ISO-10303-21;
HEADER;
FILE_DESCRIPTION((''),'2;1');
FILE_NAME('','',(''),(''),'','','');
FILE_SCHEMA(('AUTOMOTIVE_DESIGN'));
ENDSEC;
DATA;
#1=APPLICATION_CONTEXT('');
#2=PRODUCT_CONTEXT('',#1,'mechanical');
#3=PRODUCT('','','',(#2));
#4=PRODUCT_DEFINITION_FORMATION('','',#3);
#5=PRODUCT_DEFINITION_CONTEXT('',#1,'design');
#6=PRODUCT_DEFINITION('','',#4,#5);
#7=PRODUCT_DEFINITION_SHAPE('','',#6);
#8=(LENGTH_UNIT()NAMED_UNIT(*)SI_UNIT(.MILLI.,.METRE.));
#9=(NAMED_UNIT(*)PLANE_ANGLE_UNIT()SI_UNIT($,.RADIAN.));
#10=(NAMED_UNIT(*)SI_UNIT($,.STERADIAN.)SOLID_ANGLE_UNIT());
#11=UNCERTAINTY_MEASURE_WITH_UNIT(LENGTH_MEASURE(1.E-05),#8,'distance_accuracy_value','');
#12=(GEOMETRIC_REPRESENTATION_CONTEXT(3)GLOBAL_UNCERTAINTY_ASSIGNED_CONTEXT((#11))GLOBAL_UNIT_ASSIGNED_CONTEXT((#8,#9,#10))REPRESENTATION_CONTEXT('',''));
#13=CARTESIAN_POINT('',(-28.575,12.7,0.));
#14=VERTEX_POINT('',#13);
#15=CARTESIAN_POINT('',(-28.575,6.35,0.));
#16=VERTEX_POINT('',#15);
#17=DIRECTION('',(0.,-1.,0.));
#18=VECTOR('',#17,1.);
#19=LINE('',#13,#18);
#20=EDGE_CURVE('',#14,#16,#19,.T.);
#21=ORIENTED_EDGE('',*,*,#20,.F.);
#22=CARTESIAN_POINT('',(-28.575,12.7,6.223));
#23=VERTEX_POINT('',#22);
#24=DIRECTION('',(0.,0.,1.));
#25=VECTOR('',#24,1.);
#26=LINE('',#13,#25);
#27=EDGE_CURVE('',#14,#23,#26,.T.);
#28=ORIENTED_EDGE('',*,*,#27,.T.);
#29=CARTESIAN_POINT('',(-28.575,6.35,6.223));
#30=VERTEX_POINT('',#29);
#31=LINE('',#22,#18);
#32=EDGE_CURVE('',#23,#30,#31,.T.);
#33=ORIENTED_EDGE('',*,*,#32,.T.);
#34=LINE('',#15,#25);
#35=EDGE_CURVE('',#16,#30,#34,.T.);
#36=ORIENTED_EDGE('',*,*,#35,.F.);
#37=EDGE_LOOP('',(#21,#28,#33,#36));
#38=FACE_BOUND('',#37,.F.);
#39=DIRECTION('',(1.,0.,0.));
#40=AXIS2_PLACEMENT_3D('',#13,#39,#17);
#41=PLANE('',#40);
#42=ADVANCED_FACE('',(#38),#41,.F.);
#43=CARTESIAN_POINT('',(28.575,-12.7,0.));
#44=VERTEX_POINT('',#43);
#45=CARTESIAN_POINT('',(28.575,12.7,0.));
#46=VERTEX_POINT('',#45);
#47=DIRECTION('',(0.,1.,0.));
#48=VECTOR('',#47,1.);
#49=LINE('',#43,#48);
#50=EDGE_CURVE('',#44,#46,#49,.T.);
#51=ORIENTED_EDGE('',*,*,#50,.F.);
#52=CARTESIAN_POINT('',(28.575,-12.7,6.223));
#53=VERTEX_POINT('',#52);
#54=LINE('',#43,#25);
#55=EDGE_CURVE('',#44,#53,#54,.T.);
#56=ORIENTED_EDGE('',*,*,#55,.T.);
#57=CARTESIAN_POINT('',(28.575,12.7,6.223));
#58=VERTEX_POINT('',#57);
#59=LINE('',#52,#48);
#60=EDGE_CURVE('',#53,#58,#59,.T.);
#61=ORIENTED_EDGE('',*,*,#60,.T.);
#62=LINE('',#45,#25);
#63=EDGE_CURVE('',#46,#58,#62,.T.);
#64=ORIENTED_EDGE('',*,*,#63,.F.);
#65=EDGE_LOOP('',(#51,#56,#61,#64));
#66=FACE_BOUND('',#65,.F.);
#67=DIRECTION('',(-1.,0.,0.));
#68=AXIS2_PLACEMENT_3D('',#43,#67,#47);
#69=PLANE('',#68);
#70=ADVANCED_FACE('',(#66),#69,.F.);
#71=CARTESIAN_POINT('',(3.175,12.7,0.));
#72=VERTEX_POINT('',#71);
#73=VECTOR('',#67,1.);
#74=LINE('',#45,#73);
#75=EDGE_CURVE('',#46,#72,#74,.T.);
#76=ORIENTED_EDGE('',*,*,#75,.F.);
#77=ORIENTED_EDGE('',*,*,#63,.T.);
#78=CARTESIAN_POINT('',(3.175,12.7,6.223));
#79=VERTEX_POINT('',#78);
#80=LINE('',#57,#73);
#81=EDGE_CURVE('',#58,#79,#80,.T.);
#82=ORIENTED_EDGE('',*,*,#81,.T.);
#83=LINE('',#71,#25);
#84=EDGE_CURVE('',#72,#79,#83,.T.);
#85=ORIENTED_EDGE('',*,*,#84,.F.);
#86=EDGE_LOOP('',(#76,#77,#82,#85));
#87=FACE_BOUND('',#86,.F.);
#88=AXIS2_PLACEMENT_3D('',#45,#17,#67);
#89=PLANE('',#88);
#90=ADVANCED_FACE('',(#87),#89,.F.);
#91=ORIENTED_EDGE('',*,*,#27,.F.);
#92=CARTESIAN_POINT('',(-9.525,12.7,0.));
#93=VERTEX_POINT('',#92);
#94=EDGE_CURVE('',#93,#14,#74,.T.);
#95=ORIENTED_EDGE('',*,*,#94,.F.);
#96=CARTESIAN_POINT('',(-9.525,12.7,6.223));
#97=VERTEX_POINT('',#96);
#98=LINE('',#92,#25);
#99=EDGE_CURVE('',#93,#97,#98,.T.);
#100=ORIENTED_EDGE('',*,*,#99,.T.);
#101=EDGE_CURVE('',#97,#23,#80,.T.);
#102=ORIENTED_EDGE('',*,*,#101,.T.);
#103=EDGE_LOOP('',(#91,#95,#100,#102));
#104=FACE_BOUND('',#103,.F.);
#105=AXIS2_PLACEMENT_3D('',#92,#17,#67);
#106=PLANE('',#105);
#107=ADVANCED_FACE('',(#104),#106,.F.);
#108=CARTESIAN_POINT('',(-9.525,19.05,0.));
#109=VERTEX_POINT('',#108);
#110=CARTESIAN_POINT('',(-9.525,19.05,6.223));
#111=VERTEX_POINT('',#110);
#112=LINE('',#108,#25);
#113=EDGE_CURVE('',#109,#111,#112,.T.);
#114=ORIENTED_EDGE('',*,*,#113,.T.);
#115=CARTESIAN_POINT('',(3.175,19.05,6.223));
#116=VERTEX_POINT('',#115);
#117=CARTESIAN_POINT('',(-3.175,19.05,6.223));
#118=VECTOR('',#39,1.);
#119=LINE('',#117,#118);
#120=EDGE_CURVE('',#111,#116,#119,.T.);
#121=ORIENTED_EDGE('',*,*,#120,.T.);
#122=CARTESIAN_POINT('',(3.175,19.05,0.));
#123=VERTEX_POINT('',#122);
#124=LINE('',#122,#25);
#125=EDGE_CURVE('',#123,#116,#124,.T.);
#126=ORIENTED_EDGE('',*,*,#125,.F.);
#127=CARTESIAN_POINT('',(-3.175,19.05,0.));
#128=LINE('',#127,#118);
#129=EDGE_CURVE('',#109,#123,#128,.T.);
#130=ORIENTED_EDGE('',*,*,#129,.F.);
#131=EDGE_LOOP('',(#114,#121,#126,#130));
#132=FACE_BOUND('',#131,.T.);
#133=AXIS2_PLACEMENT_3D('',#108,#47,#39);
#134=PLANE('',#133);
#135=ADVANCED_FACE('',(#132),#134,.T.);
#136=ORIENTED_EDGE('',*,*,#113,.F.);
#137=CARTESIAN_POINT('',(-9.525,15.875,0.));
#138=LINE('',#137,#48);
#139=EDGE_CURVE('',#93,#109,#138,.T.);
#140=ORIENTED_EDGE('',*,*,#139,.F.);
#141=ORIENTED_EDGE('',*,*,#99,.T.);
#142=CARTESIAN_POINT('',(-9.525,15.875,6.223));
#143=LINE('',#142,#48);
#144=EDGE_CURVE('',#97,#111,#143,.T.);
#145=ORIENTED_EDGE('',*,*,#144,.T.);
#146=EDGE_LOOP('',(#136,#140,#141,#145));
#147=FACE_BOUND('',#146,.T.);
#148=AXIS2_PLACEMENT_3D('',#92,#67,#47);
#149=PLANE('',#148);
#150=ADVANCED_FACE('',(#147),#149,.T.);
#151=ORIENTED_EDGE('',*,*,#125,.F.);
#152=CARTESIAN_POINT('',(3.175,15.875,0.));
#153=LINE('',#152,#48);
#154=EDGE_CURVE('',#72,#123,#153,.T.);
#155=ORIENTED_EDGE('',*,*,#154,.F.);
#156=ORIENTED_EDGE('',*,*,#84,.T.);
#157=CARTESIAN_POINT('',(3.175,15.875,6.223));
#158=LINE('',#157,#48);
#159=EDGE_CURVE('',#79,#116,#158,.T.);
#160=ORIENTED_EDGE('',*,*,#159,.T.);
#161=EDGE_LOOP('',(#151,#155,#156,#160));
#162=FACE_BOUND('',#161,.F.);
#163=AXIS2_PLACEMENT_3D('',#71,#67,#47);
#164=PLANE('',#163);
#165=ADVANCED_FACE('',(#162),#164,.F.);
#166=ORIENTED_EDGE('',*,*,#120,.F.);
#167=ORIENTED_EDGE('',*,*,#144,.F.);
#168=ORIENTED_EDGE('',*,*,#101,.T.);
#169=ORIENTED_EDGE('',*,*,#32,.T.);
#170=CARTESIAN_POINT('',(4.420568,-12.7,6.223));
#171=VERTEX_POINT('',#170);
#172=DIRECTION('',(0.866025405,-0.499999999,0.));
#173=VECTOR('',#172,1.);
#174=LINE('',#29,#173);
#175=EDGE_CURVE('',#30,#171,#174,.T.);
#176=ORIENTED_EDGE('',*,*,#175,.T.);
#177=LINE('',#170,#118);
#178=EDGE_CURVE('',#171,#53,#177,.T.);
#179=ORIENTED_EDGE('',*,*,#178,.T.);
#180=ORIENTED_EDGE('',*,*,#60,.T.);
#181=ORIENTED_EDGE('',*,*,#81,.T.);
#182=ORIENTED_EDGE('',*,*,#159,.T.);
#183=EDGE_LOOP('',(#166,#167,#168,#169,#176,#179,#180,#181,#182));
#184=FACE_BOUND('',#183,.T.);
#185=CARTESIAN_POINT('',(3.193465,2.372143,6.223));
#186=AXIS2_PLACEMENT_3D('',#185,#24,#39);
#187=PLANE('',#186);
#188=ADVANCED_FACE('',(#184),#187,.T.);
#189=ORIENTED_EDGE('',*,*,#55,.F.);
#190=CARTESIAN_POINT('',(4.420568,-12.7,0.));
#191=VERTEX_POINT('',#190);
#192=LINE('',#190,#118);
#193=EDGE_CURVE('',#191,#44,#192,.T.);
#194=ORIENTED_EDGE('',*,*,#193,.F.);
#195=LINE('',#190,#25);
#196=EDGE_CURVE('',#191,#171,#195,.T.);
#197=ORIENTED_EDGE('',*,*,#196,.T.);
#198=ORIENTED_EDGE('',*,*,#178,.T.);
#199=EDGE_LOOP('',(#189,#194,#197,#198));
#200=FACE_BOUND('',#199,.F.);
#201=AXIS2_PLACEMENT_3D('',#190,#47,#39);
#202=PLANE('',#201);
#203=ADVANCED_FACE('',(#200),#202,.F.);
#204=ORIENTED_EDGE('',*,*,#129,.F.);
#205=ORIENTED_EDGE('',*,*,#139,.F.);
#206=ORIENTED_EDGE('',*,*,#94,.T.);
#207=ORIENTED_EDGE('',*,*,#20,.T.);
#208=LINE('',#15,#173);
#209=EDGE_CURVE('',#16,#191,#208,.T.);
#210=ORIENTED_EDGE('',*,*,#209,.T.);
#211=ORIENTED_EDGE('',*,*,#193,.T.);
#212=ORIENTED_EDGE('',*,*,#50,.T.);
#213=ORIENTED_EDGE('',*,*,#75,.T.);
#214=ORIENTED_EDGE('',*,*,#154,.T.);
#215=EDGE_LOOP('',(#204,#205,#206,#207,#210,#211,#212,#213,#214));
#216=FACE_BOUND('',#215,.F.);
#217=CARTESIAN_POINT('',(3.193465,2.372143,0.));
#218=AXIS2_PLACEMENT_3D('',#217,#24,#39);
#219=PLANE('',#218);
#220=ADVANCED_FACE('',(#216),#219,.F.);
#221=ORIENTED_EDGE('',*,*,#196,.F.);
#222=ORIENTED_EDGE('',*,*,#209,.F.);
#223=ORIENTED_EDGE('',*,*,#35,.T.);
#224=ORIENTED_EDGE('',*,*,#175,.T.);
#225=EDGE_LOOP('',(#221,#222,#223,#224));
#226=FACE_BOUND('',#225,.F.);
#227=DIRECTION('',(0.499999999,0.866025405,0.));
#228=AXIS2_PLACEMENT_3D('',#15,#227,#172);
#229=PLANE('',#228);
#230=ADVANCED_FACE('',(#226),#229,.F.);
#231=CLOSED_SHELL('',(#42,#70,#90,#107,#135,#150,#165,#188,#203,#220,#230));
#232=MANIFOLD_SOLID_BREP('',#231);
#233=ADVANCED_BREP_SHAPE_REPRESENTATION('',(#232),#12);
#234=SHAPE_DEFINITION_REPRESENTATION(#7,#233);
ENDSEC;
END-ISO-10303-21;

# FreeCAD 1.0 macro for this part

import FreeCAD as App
import Part
import Sketcher

V = App.Vector
Q = App.Units.Quantity

doc = App.newDocument("Part")
body = doc.addObject("PartDesign::Body", "Body")

# Sketch on XY plane
sketch1 = body.newObject("Sketcher::SketchObject", "Sketch")
sketch1.AttachmentSupport = (doc.getObject("XY_Plane"), [""])
sketch1.MapMode = "FlatFace"
sketch1.addGeometry(Part.LineSegment(V(4.420568, -12.7, 0), V(28.575, -12.7, 0)), False)
sketch1.addGeometry(Part.LineSegment(V(28.575, -12.7, 0), V(28.575, 12.7, 0)), False)
sketch1.addGeometry(Part.LineSegment(V(28.575, 12.7, 0), V(3.175, 12.7, 0)), False)
sketch1.addGeometry(Part.LineSegment(V(3.175, 12.7, 0), V(3.175, 19.05, 0)), False)
sketch1.addGeometry(Part.LineSegment(V(3.175, 19.05, 0), V(-9.525, 19.05, 0)), False)
sketch1.addGeometry(Part.LineSegment(V(-9.525, 19.05, 0), V(-9.525, 12.7, 0)), False)
sketch1.addGeometry(Part.LineSegment(V(-9.525, 12.7, 0), V(-28.575, 12.7, 0)), False)
sketch1.addGeometry(Part.LineSegment(V(-28.575, 12.7, 0), V(-28.575, 6.35, 0)), False)
sketch1.addGeometry(Part.LineSegment(V(-28.575, 6.35, 0), V(4.420568, -12.7, 0)), False)
sketch1.addConstraint(Sketcher.Constraint("Coincident", 0, 2, 1, 1))
sketch1.addConstraint(Sketcher.Constraint("Coincident", 1, 2, 2, 1))
sketch1.addConstraint(Sketcher.Constraint("Coincident", 2, 2, 3, 1))
sketch1.addConstraint(Sketcher.Constraint("Coincident", 3, 2, 4, 1))
sketch1.addConstraint(Sketcher.Constraint("Coincident", 4, 2, 5, 1))
sketch1.addConstraint(Sketcher.Constraint("Coincident", 5, 2, 6, 1))
sketch1.addConstraint(Sketcher.Constraint("Coincident", 6, 2, 7, 1))
sketch1.addConstraint(Sketcher.Constraint("Coincident", 7, 2, 8, 1))
sketch1.addConstraint(Sketcher.Constraint("Coincident", 8, 2, 0, 1))
sketch1.addConstraint(Sketcher.Constraint("Horizontal", 0))
sketch1.addConstraint(Sketcher.Constraint("Vertical", 1))
sketch1.addConstraint(Sketcher.Constraint("Horizontal", 2))
sketch1.addConstraint(Sketcher.Constraint("Vertical", 3))
sketch1.addConstraint(Sketcher.Constraint("Horizontal", 4))
sketch1.addConstraint(Sketcher.Constraint("Vertical", 5))
sketch1.addConstraint(Sketcher.Constraint("Horizontal", 6))
sketch1.addConstraint(Sketcher.Constraint("Vertical", 7))
sketch1.addConstraint(Sketcher.Constraint("Symmetric", 0, 2, 6, 2, -1, 1))
sketch1.addConstraint(Sketcher.Constraint("Horizontal", 2, 2, 5, 2))
sketch1.addConstraint(Sketcher.Constraint("Equal", 2, 1))
sketch1.addConstraint(Sketcher.Constraint("Equal", 5, 7))
sketch1.addConstraint(Sketcher.Constraint("DistanceX", 2, 2, 2, 1, Q("1 in")))
sketch1.addConstraint(Sketcher.Constraint("DistanceX", 4, 2, 4, 1, Q("0.5 in")))
sketch1.addConstraint(Sketcher.Constraint("Angle", 8, Q("-30 deg")))
sketch1.addConstraint(Sketcher.Constraint("Distance", 8, Q("1.5 in")))
sketch1.addConstraint(Sketcher.Constraint("DistanceX", 6, 2, 6, 1, Q("0.75 in")))
pad1 = body.newObject("PartDesign::Pad", "Pad")
pad1.Profile = sketch1
pad1.Length = Q("0.245 in")

doc.recompute()
